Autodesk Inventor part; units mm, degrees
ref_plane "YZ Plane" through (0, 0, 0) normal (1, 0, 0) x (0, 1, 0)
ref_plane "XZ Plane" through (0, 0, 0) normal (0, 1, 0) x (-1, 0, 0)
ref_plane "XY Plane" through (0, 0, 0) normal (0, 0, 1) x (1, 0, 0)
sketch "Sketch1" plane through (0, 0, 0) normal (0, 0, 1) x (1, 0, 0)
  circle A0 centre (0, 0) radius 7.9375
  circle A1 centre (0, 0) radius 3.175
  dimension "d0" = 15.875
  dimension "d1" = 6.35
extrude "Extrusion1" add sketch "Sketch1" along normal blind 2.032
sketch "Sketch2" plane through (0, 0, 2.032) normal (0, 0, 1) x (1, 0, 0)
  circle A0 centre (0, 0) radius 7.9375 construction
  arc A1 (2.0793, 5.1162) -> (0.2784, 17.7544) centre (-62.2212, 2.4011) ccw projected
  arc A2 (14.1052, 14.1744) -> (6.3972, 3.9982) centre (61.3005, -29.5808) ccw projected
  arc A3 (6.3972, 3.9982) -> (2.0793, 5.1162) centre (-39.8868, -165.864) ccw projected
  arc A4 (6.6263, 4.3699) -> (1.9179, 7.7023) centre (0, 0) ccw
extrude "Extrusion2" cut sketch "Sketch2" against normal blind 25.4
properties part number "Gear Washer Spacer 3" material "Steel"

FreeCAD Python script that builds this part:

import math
import FreeCAD as App
import Part
import Sketcher
Q = App.Units.Quantity

doc = App.newDocument("Part")
params = doc.addObject("Spreadsheet::Sheet", "Params")
for row, (alias, value) in enumerate([
    ("sketch1_diameter", "0.25 in"),
    ("sketch1_diameter2", "0.625 in"),
    ("pad1_length", "0.08 in"),
    ("sketch2_radius", "2.534 in"),
    ("sketch2_radius2", "0.3125 in"),
    ("sketch2_height", "6.692 in"),
    ("pocket1_length", "1 in"),
], start=1):
    params.set(f"A{row}", alias)
    params.set(f"B{row}", "=" + value)
    params.setAlias(f"B{row}", alias)

body = doc.addObject("PartDesign::Body", "Body")

sketch1 = doc.addObject("Sketcher::SketchObject", "Sketch")
body.addObject(sketch1)
sketch1.AttachmentSupport = (doc.XY_Plane, [""])
sketch1.MapMode = "FlatFace"
sketch1.addGeometry(Part.Circle(App.Vector(0, 0, 0), App.Vector(0, 0, 1), 7.9), False)
sketch1.addGeometry(Part.Circle(App.Vector(0, 0, 0), App.Vector(0, 0, 1), 3.2), False)
sketch1.addConstraint(Sketcher.Constraint("Coincident", 0, 3, -1, 1))
sketch1.addConstraint(Sketcher.Constraint("Coincident", 1, 3, -1, 1))
sketch1.addConstraint(Sketcher.Constraint("Diameter", 1, Q("0.25 in")))
sketch1.addConstraint(Sketcher.Constraint("Diameter", 0, Q("0.625 in")))
sketch1.setExpression("Constraints[2]", "Params.sketch1_diameter")
sketch1.setExpression("Constraints[3]", "Params.sketch1_diameter2")
pad1 = doc.addObject("PartDesign::Pad", "Pad")
body.addObject(pad1)
pad1.Profile = sketch1
pad1.setExpression("Length", "Params.pad1_length")

sketch2 = doc.addObject("Sketcher::SketchObject", "Sketch001")
body.addObject(sketch2)
sketch2.AttachmentSupport = (doc.XY_Plane, [""])
sketch2.MapMode = "FlatFace"
sketch2.AttachmentOffset = App.Placement(App.Vector(0, 0, 0.08 * 25.4), App.Rotation())
sketch2.addGeometry(Part.ArcOfCircle(Part.Circle(App.Vector(-62.22, 2.4, 0), App.Vector(0, 0, 1), 64.36), math.radians(2.42), math.radians(4.72)), False)
sketch2.addGeometry(Part.ArcOfCircle(Part.Circle(App.Vector(-39.92, -165.98, 0), App.Vector(0, 0, 1), 176.17), math.radians(74.76), math.radians(76.21)), False)
sketch2.addGeometry(Part.ArcOfCircle(Part.Circle(App.Vector(61.31, -29.58, 0), App.Vector(0, 0, 1), 64.36), math.radians(148.16), math.radians(148.55)), False)
sketch2.addGeometry(Part.ArcOfCircle(Part.Circle(App.Vector(0, 0, 0), App.Vector(0, 0, 1), 7.94), math.radians(33), math.radians(76)), False)
sketch2.addConstraint(Sketcher.Constraint("Coincident", 0, 1, 1, 2))
sketch2.addConstraint(Sketcher.Constraint("Coincident", 1, 1, 2, 2))
sketch2.addConstraint(Sketcher.Constraint("Coincident", 2, 1, 3, 1))
sketch2.addConstraint(Sketcher.Constraint("Coincident", 3, 2, 0, 2))
sketch2.addConstraint(Sketcher.Constraint("Coincident", 3, 3, -1, 1))
sketch2.addConstraint(Sketcher.Constraint("Radius", 2, Q("2.534 in")))
sketch2.addConstraint(Sketcher.Constraint("Radius", 3, Q("0.3125 in")))
sketch2.addConstraint(Sketcher.Constraint("Radius", 0, Q("2.5337 in")))
sketch2.addConstraint(Sketcher.Constraint("Radius", 1, 176.1736))
sketch2.addConstraint(Sketcher.Constraint("DistanceX", 0, 1, 1, 1, Q("0.17 in")))
sketch2.addConstraint(Sketcher.Constraint("DistanceY", 1, 3, 1, 1, Q("6.692 in")))
sketch2.addConstraint(Sketcher.Constraint("DistanceY", 1, 3, -1, 1, Q("6.5346 in")))
sketch2.addConstraint(Sketcher.Constraint("DistanceX", -1, 1, 2, 3, Q("2.4136 in")))
sketch2.addConstraint(Sketcher.Constraint("DistanceX", -1, 1, 3, 2, Q("0.0755 in")))
sketch2.addConstraint(Sketcher.Constraint("DistanceY", 2, 3, 0, 3, Q("1.2593 in")))
sketch2.setExpression("Constraints[5]", "Params.sketch2_radius")
sketch2.setExpression("Constraints[6]", "Params.sketch2_radius2")
sketch2.setExpression("Constraints[10]", "Params.sketch2_height")
pocket1 = doc.addObject("PartDesign::Pocket", "Pocket")
body.addObject(pocket1)
pocket1.Profile = sketch2
pocket1.setExpression("Length", "Params.pocket1_length")

doc.recompute()
